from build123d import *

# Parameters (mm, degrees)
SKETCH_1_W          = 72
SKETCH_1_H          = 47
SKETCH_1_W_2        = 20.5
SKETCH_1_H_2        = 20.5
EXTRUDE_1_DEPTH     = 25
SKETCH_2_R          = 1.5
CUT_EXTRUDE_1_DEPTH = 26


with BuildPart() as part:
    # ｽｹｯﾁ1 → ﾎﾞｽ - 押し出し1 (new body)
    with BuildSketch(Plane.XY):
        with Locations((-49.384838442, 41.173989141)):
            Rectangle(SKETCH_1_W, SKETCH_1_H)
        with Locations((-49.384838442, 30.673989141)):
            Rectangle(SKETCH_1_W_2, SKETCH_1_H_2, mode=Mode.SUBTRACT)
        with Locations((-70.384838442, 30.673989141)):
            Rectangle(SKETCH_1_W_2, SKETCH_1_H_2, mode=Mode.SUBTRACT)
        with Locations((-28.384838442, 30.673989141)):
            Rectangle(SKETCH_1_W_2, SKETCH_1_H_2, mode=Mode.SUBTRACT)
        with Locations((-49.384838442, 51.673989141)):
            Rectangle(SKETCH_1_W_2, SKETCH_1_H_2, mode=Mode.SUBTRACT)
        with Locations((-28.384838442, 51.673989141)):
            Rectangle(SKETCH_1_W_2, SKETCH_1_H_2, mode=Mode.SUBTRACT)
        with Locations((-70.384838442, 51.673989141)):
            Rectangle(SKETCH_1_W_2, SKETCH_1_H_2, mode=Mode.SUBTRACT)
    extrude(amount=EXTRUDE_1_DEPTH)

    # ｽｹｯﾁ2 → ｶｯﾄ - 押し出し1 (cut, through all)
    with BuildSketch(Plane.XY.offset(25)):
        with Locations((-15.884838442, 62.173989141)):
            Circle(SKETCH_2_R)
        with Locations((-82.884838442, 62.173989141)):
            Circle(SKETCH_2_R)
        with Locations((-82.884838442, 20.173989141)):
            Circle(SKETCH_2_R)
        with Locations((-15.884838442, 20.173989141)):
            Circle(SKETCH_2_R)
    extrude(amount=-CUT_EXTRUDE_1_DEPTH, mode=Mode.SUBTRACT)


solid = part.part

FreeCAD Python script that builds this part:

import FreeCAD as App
import Part
import Sketcher
from FreeCAD import Vector
Q = App.Units.Quantity


def add_polygon(sketch, points):
    """Adds a closed chain of lines whose ends are joined by coincident constraints."""
    first, n = sketch.GeometryCount, len(points)
    for a, b in zip(points, points[1:] + points[:1]):
        sketch.addGeometry(Part.LineSegment(App.Vector(*a, 0), App.Vector(*b, 0)), False)
    for i in range(n):
        sketch.addConstraint(Sketcher.Constraint("Coincident", first + i, 2, first + (i + 1) % n, 1))

doc = App.newDocument("Part")
body = doc.addObject("PartDesign::Body", "Body")

sketch1 = doc.addObject("Sketcher::SketchObject", "Sketch")
body.addObject(sketch1)
sketch1.AttachmentSupport = (doc.XY_Plane, [""])
sketch1.MapMode = "FlatFace"
add_polygon(sketch1, [(-85, 65), (-85, 18), (-13, 18), (-13, 65)])
add_polygon(sketch1, [(-60, 20), (-81, 20), (-81, 41), (-60, 41)])
add_polygon(sketch1, [(-39, 20), (-60, 20), (-60, 41), (-39, 41)])
add_polygon(sketch1, [(-18, 20), (-39, 20), (-39, 41), (-18, 41)])
add_polygon(sketch1, [(-60, 41), (-81, 41), (-81, 62), (-60, 62)])
add_polygon(sketch1, [(-39, 41), (-60, 41), (-60, 62), (-39, 62)])
add_polygon(sketch1, [(-18, 41), (-39, 41), (-39, 62), (-18, 62)])
sketch1.addConstraint([
    Sketcher.Constraint("Vertical", 0),
    Sketcher.Constraint("Horizontal", 1),
    Sketcher.Constraint("Vertical", 2),
    Sketcher.Constraint("Horizontal", 3),
    Sketcher.Constraint("Horizontal", 4),
    Sketcher.Constraint("Vertical", 5),
    Sketcher.Constraint("Horizontal", 6),
    Sketcher.Constraint("Vertical", 7),
    Sketcher.Constraint("Horizontal", 8),
    Sketcher.Constraint("Vertical", 9),
    Sketcher.Constraint("Horizontal", 10),
    Sketcher.Constraint("Vertical", 11),
    Sketcher.Constraint("Horizontal", 12),
    Sketcher.Constraint("Vertical", 13),
    Sketcher.Constraint("Horizontal", 14),
    Sketcher.Constraint("Vertical", 15),
    Sketcher.Constraint("Horizontal", 16),
    Sketcher.Constraint("Vertical", 17),
    Sketcher.Constraint("Horizontal", 18),
    Sketcher.Constraint("Vertical", 19),
    Sketcher.Constraint("Horizontal", 20),
    Sketcher.Constraint("Vertical", 21),
    Sketcher.Constraint("Horizontal", 22),
    Sketcher.Constraint("Vertical", 23),
    Sketcher.Constraint("Horizontal", 24),
    Sketcher.Constraint("Vertical", 25),
    Sketcher.Constraint("Horizontal", 26),
    Sketcher.Constraint("Vertical", 27),
    Sketcher.Constraint("Horizontal", 7, 2, 8, 2),
    Sketcher.Constraint("Horizontal", 6, 2, 9, 2),
    Sketcher.Constraint("Horizontal", 11, 2, 12, 2),
    Sketcher.Constraint("Horizontal", 10, 2, 13, 2),
    Sketcher.Constraint("Horizontal", 19, 2, 20, 2),
    Sketcher.Constraint("Horizontal", 18, 2, 21, 2),
    Sketcher.Constraint("Horizontal", 23, 2, 24, 2),
    Sketcher.Constraint("Horizontal", 22, 2, 25, 2),
    Sketcher.Constraint("Vertical", 5, 2, 16, 2),
    Sketcher.Constraint("Vertical", 7, 2, 18, 2),
    Sketcher.Constraint("Vertical", 9, 2, 20, 2),
    Sketcher.Constraint("Vertical", 11, 2, 22, 2),
    Sketcher.Constraint("Vertical", 13, 2, 24, 2),
    Sketcher.Constraint("Vertical", 15, 2, 26, 2),
    Sketcher.Constraint("Equal", 6, 8),
    Sketcher.Constraint("Equal", 10, 12),
    Sketcher.Constraint("Equal", 26, 5),
    Sketcher.Constraint("Equal", 15, 17),
    Sketcher.Constraint("DistanceX", 1, 1, 1, 2, Q("72 mm")),
    Sketcher.Constraint("DistanceY", 0, 2, 0, 1, Q("47 mm")),
    Sketcher.Constraint("DistanceX", 4, 2, 4, 1, Q("20.5 mm")),
    Sketcher.Constraint("DistanceX", 4, 2, 8, 2, Q("21 mm")),
    Sketcher.Constraint("DistanceX", 8, 2, 12, 2, Q("21 mm")),
    Sketcher.Constraint("DistanceY", 4, 2, 16, 2, Q("21 mm")),
    Sketcher.Constraint("DistanceX", 0, 2, 4, 2, Q("4.75 mm")),
    Sketcher.Constraint("DistanceY", 0, 2, 4, 2, Q("2.75 mm")),
    Sketcher.Constraint("DistanceX", 0, 2, -1, 1, Q("85.384838 mm")),
    Sketcher.Constraint("DistanceY", -1, 1, 0, 2, Q("17.673989 mm")),
])
pad1 = doc.addObject("PartDesign::Pad", "Pad")
body.addObject(pad1)
pad1.Profile = sketch1
pad1.Length = 25

sketch2 = doc.addObject("Sketcher::SketchObject", "Sketch001")
body.addObject(sketch2)
sketch2.AttachmentSupport = (doc.XY_Plane, [""])
sketch2.MapMode = "FlatFace"
sketch2.AttachmentOffset = App.Placement(Vector(0, 0, 25), App.Rotation())
sketch2.addGeometry([
    Part.Circle(Vector(-15.9, 62.2, 0), Vector(0, 0, 1), 1.5),
    Part.Circle(Vector(-82.9, 62.2, 0), Vector(0, 0, 1), 1.5),
    Part.Circle(Vector(-82.9, 20.2, 0), Vector(0, 0, 1), 1.5),
    Part.Circle(Vector(-15.9, 20.2, 0), Vector(0, 0, 1), 1.5),
], False)
sketch2.addConstraint([
    Sketcher.Constraint("Equal", 0, 1),
    Sketcher.Constraint("Equal", 1, 2),
    Sketcher.Constraint("Equal", 2, 3),
    Sketcher.Constraint("Horizontal", 0, 3, 1, 3),
    Sketcher.Constraint("Horizontal", 2, 3, 3, 3),
    Sketcher.Constraint("Vertical", 1, 3, 2, 3),
    Sketcher.Constraint("Vertical", 0, 3, 3, 3),
    Sketcher.Constraint("Diameter", 0, Q("3 mm")),
    Sketcher.Constraint("DistanceX", 1, 3, 0, 3, Q("67 mm")),
    Sketcher.Constraint("DistanceY", 2, 3, 1, 3, Q("42 mm")),
    Sketcher.Constraint("DistanceX", 0, 3, -1, 1, Q("15.884838 mm")),
    Sketcher.Constraint("DistanceY", -1, 1, 0, 3, Q("62.173989 mm")),
])
pocket1 = doc.addObject("PartDesign::Pocket", "Pocket")
body.addObject(pocket1)
pocket1.Profile = sketch2
pocket1.Type = "ThroughAll"

doc.recompute()
